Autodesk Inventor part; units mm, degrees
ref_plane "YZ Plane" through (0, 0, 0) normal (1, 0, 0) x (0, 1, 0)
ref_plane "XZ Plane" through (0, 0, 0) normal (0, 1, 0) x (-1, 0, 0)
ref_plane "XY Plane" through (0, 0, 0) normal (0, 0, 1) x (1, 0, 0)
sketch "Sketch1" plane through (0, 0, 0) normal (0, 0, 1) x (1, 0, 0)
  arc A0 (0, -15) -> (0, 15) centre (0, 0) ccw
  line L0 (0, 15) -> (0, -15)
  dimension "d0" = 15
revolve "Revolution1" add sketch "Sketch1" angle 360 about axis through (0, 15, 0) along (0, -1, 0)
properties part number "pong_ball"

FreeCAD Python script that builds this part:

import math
import FreeCAD as App
import Part
import Sketcher

V = App.Vector
Q = App.Units.Quantity

doc = App.newDocument("Part")
body = doc.addObject("PartDesign::Body", "Body")

# Sketch on XY plane
sketch1 = doc.addObject("Sketcher::SketchObject", "Sketch")
body.addObject(sketch1)
sketch1.AttachmentSupport = (doc.XY_Plane, [""])
sketch1.MapMode = "FlatFace"
sketch1.addGeometry(Part.LineSegment(V(0, 15, 0), V(0, -15, 0)), False)
sketch1.addGeometry(Part.ArcOfCircle(Part.Circle(V(0, 0, 0), V(0, 0, 1), 15), math.radians(-90), math.radians(90)), False)
sketch1.addConstraint(Sketcher.Constraint("Coincident", 0, 1, 1, 2))
sketch1.addConstraint(Sketcher.Constraint("Coincident", 1, 1, 0, 2))
sketch1.addConstraint(Sketcher.Constraint("Vertical", 0))
sketch1.addConstraint(Sketcher.Constraint("Coincident", 1, 3, -1, 1))
sketch1.addConstraint(Sketcher.Constraint("PointOnObject", 0, 1, -2))
sketch1.addConstraint(Sketcher.Constraint("Radius", 1, Q("15 mm")))
revolution = doc.addObject("PartDesign::Revolution", "Revolution")
body.addObject(revolution)
revolution.Profile = sketch1
revolution.ReferenceAxis = (sketch1, ["V_Axis"])
revolution.Angle = 360

doc.recompute()
